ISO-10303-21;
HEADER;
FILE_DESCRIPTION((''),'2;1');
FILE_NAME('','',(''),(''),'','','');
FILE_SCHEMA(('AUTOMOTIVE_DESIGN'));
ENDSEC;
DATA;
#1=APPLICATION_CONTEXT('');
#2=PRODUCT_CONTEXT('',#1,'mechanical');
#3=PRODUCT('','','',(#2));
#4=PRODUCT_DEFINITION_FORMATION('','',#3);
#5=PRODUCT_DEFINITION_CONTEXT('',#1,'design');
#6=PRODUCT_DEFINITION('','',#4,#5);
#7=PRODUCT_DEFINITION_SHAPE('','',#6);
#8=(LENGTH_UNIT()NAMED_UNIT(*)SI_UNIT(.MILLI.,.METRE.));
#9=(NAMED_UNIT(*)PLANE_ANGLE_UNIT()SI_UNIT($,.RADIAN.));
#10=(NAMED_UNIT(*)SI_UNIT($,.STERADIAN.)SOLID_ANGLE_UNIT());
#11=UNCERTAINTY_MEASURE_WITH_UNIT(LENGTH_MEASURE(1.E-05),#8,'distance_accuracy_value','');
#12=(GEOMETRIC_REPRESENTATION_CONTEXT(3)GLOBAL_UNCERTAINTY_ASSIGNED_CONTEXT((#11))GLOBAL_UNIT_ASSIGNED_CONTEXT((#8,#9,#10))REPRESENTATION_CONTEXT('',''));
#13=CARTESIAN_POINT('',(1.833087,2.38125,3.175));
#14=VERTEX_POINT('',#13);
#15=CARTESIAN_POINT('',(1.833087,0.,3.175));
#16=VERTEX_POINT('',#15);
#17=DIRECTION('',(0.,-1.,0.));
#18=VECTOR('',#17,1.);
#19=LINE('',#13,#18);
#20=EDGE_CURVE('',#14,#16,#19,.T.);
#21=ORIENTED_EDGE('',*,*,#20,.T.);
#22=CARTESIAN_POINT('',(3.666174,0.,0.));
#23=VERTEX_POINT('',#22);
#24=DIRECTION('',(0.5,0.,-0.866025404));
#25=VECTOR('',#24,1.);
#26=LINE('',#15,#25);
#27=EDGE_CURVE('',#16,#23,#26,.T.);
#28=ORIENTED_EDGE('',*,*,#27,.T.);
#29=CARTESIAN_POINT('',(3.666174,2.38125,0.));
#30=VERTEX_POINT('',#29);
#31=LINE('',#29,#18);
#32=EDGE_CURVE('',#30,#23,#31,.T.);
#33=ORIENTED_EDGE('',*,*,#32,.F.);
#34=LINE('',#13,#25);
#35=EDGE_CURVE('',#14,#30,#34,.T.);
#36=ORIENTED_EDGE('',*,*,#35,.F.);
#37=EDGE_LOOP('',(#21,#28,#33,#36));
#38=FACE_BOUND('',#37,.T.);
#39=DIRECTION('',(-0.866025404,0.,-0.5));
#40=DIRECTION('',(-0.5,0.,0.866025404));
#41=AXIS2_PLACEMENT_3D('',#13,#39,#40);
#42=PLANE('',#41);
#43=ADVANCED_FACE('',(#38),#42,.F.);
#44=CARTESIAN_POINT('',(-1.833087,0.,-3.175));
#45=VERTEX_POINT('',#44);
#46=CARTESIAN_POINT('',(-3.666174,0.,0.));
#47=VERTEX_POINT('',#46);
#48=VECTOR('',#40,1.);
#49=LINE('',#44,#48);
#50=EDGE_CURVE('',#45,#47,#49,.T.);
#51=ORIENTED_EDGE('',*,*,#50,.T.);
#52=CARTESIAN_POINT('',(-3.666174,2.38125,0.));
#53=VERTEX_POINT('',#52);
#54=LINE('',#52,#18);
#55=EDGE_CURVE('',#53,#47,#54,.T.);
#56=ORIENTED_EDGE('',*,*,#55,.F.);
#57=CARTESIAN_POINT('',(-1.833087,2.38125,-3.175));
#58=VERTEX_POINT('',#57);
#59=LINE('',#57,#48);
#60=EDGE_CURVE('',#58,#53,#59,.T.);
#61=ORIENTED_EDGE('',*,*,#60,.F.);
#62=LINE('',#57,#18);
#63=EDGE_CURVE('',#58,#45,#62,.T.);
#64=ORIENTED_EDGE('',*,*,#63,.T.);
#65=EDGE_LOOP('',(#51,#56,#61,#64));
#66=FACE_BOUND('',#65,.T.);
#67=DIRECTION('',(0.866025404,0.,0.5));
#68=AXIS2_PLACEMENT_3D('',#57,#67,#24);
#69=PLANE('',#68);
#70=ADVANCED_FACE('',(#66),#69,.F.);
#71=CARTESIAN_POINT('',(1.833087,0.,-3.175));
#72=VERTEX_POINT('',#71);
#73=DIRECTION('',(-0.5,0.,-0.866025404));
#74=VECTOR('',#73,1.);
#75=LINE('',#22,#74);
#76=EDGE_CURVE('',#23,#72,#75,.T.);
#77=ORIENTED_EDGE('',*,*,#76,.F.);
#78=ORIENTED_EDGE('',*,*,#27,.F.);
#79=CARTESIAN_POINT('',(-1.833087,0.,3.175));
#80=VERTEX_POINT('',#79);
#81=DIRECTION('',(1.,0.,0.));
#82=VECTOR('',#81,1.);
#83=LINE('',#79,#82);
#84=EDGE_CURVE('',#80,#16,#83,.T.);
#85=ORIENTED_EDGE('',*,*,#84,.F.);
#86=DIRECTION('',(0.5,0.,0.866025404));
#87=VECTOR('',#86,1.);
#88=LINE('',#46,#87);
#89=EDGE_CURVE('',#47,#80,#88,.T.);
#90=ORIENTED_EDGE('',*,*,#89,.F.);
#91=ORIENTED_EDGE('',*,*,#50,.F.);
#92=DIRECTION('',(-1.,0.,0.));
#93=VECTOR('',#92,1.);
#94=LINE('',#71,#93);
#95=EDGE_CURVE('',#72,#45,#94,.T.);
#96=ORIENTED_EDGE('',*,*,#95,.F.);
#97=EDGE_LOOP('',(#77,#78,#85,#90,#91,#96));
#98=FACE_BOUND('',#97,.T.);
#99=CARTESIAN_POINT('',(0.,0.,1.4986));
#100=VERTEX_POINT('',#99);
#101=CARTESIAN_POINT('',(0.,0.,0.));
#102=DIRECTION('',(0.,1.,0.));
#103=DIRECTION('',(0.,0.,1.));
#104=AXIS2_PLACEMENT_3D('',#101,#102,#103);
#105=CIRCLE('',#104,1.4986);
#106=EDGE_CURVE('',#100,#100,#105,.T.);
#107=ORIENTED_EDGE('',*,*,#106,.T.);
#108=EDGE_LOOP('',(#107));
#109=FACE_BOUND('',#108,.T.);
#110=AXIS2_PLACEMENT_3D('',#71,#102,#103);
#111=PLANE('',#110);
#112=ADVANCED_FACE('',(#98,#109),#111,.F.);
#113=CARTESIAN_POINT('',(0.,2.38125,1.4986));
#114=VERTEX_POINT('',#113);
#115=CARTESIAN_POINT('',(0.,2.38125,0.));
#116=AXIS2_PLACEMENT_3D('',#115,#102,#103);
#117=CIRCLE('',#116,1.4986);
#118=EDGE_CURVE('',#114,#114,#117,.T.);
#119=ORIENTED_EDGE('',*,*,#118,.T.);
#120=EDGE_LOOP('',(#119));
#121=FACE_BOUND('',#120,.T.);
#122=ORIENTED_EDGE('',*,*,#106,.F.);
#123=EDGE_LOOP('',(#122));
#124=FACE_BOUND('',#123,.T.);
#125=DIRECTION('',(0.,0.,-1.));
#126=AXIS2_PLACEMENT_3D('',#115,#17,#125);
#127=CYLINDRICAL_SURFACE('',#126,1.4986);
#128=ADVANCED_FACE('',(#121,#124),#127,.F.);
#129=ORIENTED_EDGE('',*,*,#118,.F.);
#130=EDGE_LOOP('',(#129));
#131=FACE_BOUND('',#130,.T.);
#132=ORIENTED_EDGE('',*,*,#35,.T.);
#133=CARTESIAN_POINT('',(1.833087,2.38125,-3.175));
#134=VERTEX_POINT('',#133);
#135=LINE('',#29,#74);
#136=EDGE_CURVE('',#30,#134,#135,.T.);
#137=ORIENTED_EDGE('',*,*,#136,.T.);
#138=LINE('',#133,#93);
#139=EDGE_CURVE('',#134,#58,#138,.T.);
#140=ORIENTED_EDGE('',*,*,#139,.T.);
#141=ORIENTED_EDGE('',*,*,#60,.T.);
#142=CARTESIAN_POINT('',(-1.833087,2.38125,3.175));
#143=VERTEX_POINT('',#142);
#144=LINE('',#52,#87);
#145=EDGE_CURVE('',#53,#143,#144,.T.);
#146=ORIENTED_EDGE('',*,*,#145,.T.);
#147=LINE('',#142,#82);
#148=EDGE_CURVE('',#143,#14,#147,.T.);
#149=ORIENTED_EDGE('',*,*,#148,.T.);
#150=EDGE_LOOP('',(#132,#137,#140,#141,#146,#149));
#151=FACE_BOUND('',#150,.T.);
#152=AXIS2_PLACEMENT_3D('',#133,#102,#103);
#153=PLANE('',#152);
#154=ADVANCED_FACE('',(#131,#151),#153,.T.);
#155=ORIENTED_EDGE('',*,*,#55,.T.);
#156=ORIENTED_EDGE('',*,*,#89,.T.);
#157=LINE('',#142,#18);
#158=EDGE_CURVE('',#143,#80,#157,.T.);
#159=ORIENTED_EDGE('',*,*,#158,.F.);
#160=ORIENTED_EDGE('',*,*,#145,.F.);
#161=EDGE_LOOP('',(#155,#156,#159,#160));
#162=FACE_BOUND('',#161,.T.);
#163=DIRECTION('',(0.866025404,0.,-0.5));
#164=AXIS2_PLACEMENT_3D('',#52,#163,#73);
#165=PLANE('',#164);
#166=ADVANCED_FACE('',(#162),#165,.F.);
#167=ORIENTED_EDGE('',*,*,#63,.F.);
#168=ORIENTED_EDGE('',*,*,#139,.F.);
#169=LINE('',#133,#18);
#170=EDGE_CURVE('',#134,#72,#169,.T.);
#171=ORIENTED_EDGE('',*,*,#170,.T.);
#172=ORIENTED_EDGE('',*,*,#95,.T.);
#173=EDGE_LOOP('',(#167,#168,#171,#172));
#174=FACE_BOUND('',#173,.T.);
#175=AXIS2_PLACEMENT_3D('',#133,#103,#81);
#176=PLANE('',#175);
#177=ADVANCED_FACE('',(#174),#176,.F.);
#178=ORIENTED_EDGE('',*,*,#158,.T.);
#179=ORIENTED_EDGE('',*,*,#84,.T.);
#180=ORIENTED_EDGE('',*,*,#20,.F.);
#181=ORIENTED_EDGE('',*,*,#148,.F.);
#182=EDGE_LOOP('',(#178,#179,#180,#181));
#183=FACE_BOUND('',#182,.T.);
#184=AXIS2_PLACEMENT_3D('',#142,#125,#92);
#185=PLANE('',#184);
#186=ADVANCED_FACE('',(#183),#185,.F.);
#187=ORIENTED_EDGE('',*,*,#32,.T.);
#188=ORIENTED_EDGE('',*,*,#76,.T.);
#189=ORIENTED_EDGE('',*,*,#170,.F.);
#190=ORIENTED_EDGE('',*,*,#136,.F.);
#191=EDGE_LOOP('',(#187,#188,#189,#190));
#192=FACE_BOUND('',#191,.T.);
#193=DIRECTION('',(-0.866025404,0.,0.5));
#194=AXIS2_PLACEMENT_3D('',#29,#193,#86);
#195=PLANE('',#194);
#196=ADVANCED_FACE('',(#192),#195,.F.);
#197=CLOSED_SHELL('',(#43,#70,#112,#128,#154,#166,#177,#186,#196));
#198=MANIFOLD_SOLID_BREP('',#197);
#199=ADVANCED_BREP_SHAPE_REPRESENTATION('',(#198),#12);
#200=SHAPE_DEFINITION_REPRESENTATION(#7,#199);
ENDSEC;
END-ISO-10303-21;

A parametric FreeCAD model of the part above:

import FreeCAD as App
import Part
import Sketcher

V = App.Vector
Q = App.Units.Quantity

doc = App.newDocument("Part")
body = doc.addObject("PartDesign::Body", "Body")

sketch1 = doc.addObject("Sketcher::SketchObject", "Sketch")
body.addObject(sketch1)
sketch1.AttachmentSupport = (doc.XZ_Plane, [""])
sketch1.MapMode = "FlatFace"
sketch1.addGeometry([
    Part.LineSegment(V(1.833087, -3.175, 0), V(-1.833087, -3.175, 0)),
    Part.LineSegment(V(-1.833087, -3.175, 0), V(-3.666174, 0, 0)),
    Part.LineSegment(V(-3.666174, 0, 0), V(-1.833087, 3.175, 0)),
    Part.LineSegment(V(-1.833087, 3.175, 0), V(1.833087, 3.175, 0)),
    Part.LineSegment(V(1.833087, 3.175, 0), V(3.666174, 0, 0)),
    Part.LineSegment(V(3.666174, 0, 0), V(1.833087, -3.175, 0)),
    Part.Circle(V(0, 0, 0), V(0, 0, 1), 1.4986),
], False)
sketch1.addConstraint([
    Sketcher.Constraint("Coincident", 0, 2, 1, 1),
    Sketcher.Constraint("Coincident", 1, 2, 2, 1),
    Sketcher.Constraint("Coincident", 2, 2, 3, 1),
    Sketcher.Constraint("Coincident", 3, 2, 4, 1),
    Sketcher.Constraint("Coincident", 4, 2, 5, 1),
    Sketcher.Constraint("Coincident", 5, 2, 0, 1),
    Sketcher.Constraint("Horizontal", 0),
    Sketcher.Constraint("Horizontal", 3),
    Sketcher.Constraint("Coincident", 6, 3, -1, 1),
    Sketcher.Constraint("Symmetric", 0, 2, 3, 2, -1, 1),
    Sketcher.Constraint("Symmetric", 1, 2, 4, 2, -1, 1),
    Sketcher.Constraint("PointOnObject", 1, 2, -1),
    Sketcher.Constraint("Parallel", 2, 5),
    Sketcher.Constraint("Vertical", 0, 2, 2, 2),
    Sketcher.Constraint("Diameter", 6, Q("0.118 in")),
    Sketcher.Constraint("Angle", 1, Q("120 deg")),
    Sketcher.Constraint("DistanceY", 0, 2, 2, 2, Q("0.25 in")),
    Sketcher.Constraint("DistanceX", 0, 2, 0, 1, Q("3.666174 mm")),
])
pad1 = doc.addObject("PartDesign::Pad", "Pad")
body.addObject(pad1)
pad1.Profile = sketch1
pad1.Length = Q("0.09375 in")
pad1.Reversed = True

doc.recompute()
